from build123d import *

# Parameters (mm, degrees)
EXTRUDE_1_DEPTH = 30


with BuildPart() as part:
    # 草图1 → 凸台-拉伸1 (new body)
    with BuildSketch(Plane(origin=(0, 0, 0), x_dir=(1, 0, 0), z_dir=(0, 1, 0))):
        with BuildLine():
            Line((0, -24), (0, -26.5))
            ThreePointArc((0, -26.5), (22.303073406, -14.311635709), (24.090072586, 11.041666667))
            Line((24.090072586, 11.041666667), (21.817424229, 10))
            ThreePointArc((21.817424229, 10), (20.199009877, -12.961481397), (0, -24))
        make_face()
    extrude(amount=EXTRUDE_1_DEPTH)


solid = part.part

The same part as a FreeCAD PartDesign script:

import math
import FreeCAD as App
import Part
import Sketcher
from FreeCAD import Vector
Q = App.Units.Quantity

doc = App.newDocument("Part")
params = doc.addObject("Spreadsheet::Sheet", "Params")
for row, (alias, value) in enumerate([
    ("sketch1_radius", "24 mm"),
    ("sketch1_radius2", "26.5 mm"),
    ("pad1_length", "30 mm"),
], start=1):
    params.set(f"A{row}", alias)
    params.set(f"B{row}", "=" + value)
    params.setAlias(f"B{row}", alias)

body = doc.addObject("PartDesign::Body", "Body")

# Sketch on XZ plane
sketch1 = body.newObject("Sketcher::SketchObject", "Sketch")
sketch1.AttachmentSupport = (doc.getObject("XZ_Plane"), [""])
sketch1.MapMode = "FlatFace"
sketch1.addGeometry(Part.LineSegment(Vector(0, 24, 0), Vector(0, 26.5, 0)), False)
sketch1.addGeometry(Part.ArcOfCircle(Part.Circle(Vector(0, 0, 0), Vector(0, 0, 1), 26.5), math.radians(-25), math.radians(90)), False)
sketch1.addGeometry(Part.LineSegment(Vector(24.1, -11, 0), Vector(21.8, -10, 0)), False)
sketch1.addGeometry(Part.ArcOfCircle(Part.Circle(Vector(0, 0, 0), Vector(0, 0, 1), 24), math.radians(-25), math.radians(90)), False)
sketch1.addConstraint(Sketcher.Constraint("Coincident", 0, 2, 1, 2))
sketch1.addConstraint(Sketcher.Constraint("Coincident", 1, 1, 2, 1))
sketch1.addConstraint(Sketcher.Constraint("Coincident", 2, 2, 3, 1))
sketch1.addConstraint(Sketcher.Constraint("Coincident", 3, 2, 0, 1))
sketch1.addConstraint(Sketcher.Constraint("Vertical", 0))
sketch1.addConstraint(Sketcher.Constraint("Coincident", 1, 3, -1, 1))
sketch1.addConstraint(Sketcher.Constraint("Coincident", 3, 3, -1, 1))
sketch1.addConstraint(Sketcher.Constraint("PointOnObject", 0, 2, -2))
sketch1.addConstraint(Sketcher.Constraint("Radius", 3, Q("24 mm")))
sketch1.addConstraint(Sketcher.Constraint("Radius", 1, Q("26.5 mm")))
sketch1.addConstraint(Sketcher.Constraint("DistanceY", 2, 2, -1, 1, Q("10 mm")))
sketch1.addConstraint(Sketcher.Constraint("DistanceX", 2, 2, 1, 1, Q("2.272648 mm")))
sketch1.setExpression("Constraints[8]", "Params.sketch1_radius")
sketch1.setExpression("Constraints[9]", "Params.sketch1_radius2")
pad1 = body.newObject("PartDesign::Pad", "Pad")
pad1.Profile = sketch1
pad1.setExpression("Length", "Params.pad1_length")
pad1.Reversed = True

doc.recompute()
